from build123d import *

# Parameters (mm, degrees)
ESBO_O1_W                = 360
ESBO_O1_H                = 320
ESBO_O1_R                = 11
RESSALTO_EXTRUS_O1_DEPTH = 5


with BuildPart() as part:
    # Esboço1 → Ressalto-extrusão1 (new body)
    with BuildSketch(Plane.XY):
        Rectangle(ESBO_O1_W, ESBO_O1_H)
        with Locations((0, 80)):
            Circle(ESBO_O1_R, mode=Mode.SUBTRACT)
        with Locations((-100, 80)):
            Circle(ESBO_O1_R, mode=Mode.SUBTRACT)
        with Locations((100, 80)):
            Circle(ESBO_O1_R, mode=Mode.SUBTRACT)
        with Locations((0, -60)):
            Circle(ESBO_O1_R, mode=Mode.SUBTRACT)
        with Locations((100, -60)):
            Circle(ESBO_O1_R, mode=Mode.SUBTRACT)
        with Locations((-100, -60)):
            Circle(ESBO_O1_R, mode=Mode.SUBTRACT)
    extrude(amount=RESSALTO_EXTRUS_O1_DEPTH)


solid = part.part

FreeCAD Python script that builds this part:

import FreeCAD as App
import Part
import Sketcher
Q = App.Units.Quantity


def add_polygon(sketch, points):
    """Adds a closed chain of lines whose ends are joined by coincident constraints."""
    first, n = sketch.GeometryCount, len(points)
    for a, b in zip(points, points[1:] + points[:1]):
        sketch.addGeometry(Part.LineSegment(App.Vector(*a, 0), App.Vector(*b, 0)), False)
    for i in range(n):
        sketch.addConstraint(Sketcher.Constraint("Coincident", first + i, 2, first + (i + 1) % n, 1))

doc = App.newDocument("Part")
body = doc.addObject("PartDesign::Body", "Body")

sketch1 = body.newObject("Sketcher::SketchObject", "Sketch")
sketch1.AttachmentSupport = (doc.getObject("XY_Plane"), [""])
sketch1.MapMode = "FlatFace"
add_polygon(sketch1, [(-180, 160), (-180, -160), (180, -160), (180, 160)])
sketch1.addGeometry(Part.Circle(App.Vector(-100, -60, 0), App.Vector(0, 0, 1), 11), False)
sketch1.addGeometry(Part.Circle(App.Vector(0, -60, 0), App.Vector(0, 0, 1), 11), False)
sketch1.addGeometry(Part.Circle(App.Vector(100, -60, 0), App.Vector(0, 0, 1), 11), False)
sketch1.addGeometry(Part.Circle(App.Vector(-100, 80, 0), App.Vector(0, 0, 1), 11), False)
sketch1.addGeometry(Part.Circle(App.Vector(0, 80, 0), App.Vector(0, 0, 1), 11), False)
sketch1.addGeometry(Part.Circle(App.Vector(100, 80, 0), App.Vector(0, 0, 1), 11), False)
sketch1.addConstraint(Sketcher.Constraint("Vertical", 0))
sketch1.addConstraint(Sketcher.Constraint("Horizontal", 1))
sketch1.addConstraint(Sketcher.Constraint("Vertical", 2))
sketch1.addConstraint(Sketcher.Constraint("Horizontal", 3))
sketch1.addConstraint(Sketcher.Constraint("Equal", 4, 5))
sketch1.addConstraint(Sketcher.Constraint("Equal", 5, 6))
sketch1.addConstraint(Sketcher.Constraint("Equal", 6, 7))
sketch1.addConstraint(Sketcher.Constraint("Equal", 7, 8))
sketch1.addConstraint(Sketcher.Constraint("Equal", 8, 9))
sketch1.addConstraint(Sketcher.Constraint("Symmetric", 0, 2, 2, 2, -1, 1))
sketch1.addConstraint(Sketcher.Constraint("Symmetric", 4, 3, 6, 3, -2))
sketch1.addConstraint(Sketcher.Constraint("Symmetric", 7, 3, 9, 3, -2))
sketch1.addConstraint(Sketcher.Constraint("PointOnObject", 5, 3, -2))
sketch1.addConstraint(Sketcher.Constraint("PointOnObject", 8, 3, -2))
sketch1.addConstraint(Sketcher.Constraint("Horizontal", 4, 3, 5, 3))
sketch1.addConstraint(Sketcher.Constraint("Horizontal", 7, 3, 8, 3))
sketch1.addConstraint(Sketcher.Constraint("Vertical", 4, 3, 7, 3))
sketch1.addConstraint(Sketcher.Constraint("Diameter", 4, Q("22 mm")))
sketch1.addConstraint(Sketcher.Constraint("DistanceX", 1, 1, 1, 2, Q("360 mm")))
sketch1.addConstraint(Sketcher.Constraint("DistanceY", 0, 2, 0, 1, Q("320 mm")))
sketch1.addConstraint(Sketcher.Constraint("DistanceX", 4, 3, -1, 1, Q("100 mm")))
sketch1.addConstraint(Sketcher.Constraint("DistanceY", 4, 3, -1, 1, Q("60 mm")))
sketch1.addConstraint(Sketcher.Constraint("DistanceY", -1, 1, 7, 3, Q("80 mm")))
pad1 = body.newObject("PartDesign::Pad", "Pad")
pad1.Profile = sketch1
pad1.Length = 5

doc.recompute()
